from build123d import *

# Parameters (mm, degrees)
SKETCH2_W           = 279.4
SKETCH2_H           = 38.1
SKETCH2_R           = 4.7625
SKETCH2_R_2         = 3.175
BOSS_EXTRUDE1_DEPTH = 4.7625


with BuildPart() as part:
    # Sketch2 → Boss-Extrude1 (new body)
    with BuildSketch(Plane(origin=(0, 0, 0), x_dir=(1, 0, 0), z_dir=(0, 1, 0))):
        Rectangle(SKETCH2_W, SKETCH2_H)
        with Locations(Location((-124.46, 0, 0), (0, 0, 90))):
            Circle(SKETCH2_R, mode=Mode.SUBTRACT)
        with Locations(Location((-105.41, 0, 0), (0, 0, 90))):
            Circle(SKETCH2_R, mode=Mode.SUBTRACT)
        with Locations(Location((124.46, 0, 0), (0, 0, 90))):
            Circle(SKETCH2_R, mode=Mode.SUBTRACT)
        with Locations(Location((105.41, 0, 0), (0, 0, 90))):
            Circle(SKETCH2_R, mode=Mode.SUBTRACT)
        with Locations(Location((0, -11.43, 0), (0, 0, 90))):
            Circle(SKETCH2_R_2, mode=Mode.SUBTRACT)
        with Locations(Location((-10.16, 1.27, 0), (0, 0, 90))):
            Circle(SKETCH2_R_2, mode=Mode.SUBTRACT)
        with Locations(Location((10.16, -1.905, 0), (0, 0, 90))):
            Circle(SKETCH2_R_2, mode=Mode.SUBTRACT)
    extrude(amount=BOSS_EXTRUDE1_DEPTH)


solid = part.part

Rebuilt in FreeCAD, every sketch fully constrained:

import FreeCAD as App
import Part
import Sketcher
from FreeCAD import Vector
Q = App.Units.Quantity


def add_polygon(sketch, points):
    """Adds a closed chain of lines whose ends are joined by coincident constraints."""
    first, n = sketch.GeometryCount, len(points)
    for a, b in zip(points, points[1:] + points[:1]):
        sketch.addGeometry(Part.LineSegment(App.Vector(*a, 0), App.Vector(*b, 0)), False)
    for i in range(n):
        sketch.addConstraint(Sketcher.Constraint("Coincident", first + i, 2, first + (i + 1) % n, 1))

doc = App.newDocument("Part")
body = doc.addObject("PartDesign::Body", "Body")

# Sketch on XZ plane
sketch1 = doc.addObject("Sketcher::SketchObject", "Sketch")
body.addObject(sketch1)
sketch1.AttachmentSupport = (doc.XZ_Plane, [""])
sketch1.MapMode = "FlatFace"
add_polygon(sketch1, [(-139.7, -19.1), (-139.7, 19.1), (139.7, 19.1), (139.7, -19.1)])  # lines 0-3
sketch1.addGeometry(Part.Circle(Vector(0, 11.4, 0), Vector(0, 0, 1), 3.2), False)  # 4
sketch1.addGeometry(Part.Circle(Vector(-124.5, 0, 0), Vector(0, 0, 1), 4.8), False)  # 5
sketch1.addGeometry(Part.Circle(Vector(-105.4, 0, 0), Vector(0, 0, 1), 4.8), False)  # 6
sketch1.addGeometry(Part.Circle(Vector(-10.2, -1.3, 0), Vector(0, 0, 1), 3.2), False)  # 7
sketch1.addGeometry(Part.Circle(Vector(10.2, 1.9, 0), Vector(0, 0, 1), 3.2), False)  # 8
sketch1.addGeometry(Part.Circle(Vector(105.4, 0, 0), Vector(0, 0, 1), 4.8), False)  # 9
sketch1.addGeometry(Part.Circle(Vector(124.5, 0, 0), Vector(0, 0, 1), 4.8), False)  # 10
sketch1.addConstraint([
    Sketcher.Constraint("Vertical", 0),
    Sketcher.Constraint("Horizontal", 1),
    Sketcher.Constraint("Vertical", 2),
    Sketcher.Constraint("Horizontal", 3),
    Sketcher.Constraint("Equal", 5, 6),
    Sketcher.Constraint("Equal", 4, 7),
    Sketcher.Constraint("Equal", 7, 8),
    Sketcher.Constraint("Equal", 6, 9),
    Sketcher.Constraint("Equal", 9, 10),
    Sketcher.Constraint("Symmetric", 6, 3, 9, 3, -1, 1),
    Sketcher.Constraint("Symmetric", 5, 3, 10, 3, -1, 1),
    Sketcher.Constraint("Symmetric", 0, 2, 2, 2, -1, 1),
    Sketcher.Constraint("PointOnObject", 4, 3, -2),
    Sketcher.Constraint("PointOnObject", 5, 3, -1),
    Sketcher.Constraint("PointOnObject", 6, 3, -1),
    Sketcher.Constraint("Diameter", 4, Q("0.25 in")),
    Sketcher.Constraint("DistanceX", 1, 1, 1, 2, Q("11 in")),
    Sketcher.Constraint("Diameter", 5, Q("0.375 in")),
    Sketcher.Constraint("DistanceY", 0, 1, 0, 2, Q("1.5 in")),
    Sketcher.Constraint("DistanceX", 5, 3, -1, 1, Q("4.9 in")),
    Sketcher.Constraint("DistanceX", 7, 3, -1, 1, Q("0.4 in")),
    Sketcher.Constraint("DistanceX", -1, 1, 8, 3, Q("0.4 in")),
    Sketcher.Constraint("DistanceY", 7, 3, 4, 3, Q("0.5 in")),
    Sketcher.Constraint("DistanceX", 6, 3, 9, 3, Q("8.3 in")),
    Sketcher.Constraint("DistanceY", 7, 3, 0, 2, Q("0.8 in")),
    Sketcher.Constraint("DistanceY", -1, 1, 8, 3, Q("0.075 in")),
])
pad1 = doc.addObject("PartDesign::Pad", "Pad")
body.addObject(pad1)
pad1.Profile = sketch1
pad1.Length = Q("0.1875 in")
pad1.Reversed = True

doc.recompute()
